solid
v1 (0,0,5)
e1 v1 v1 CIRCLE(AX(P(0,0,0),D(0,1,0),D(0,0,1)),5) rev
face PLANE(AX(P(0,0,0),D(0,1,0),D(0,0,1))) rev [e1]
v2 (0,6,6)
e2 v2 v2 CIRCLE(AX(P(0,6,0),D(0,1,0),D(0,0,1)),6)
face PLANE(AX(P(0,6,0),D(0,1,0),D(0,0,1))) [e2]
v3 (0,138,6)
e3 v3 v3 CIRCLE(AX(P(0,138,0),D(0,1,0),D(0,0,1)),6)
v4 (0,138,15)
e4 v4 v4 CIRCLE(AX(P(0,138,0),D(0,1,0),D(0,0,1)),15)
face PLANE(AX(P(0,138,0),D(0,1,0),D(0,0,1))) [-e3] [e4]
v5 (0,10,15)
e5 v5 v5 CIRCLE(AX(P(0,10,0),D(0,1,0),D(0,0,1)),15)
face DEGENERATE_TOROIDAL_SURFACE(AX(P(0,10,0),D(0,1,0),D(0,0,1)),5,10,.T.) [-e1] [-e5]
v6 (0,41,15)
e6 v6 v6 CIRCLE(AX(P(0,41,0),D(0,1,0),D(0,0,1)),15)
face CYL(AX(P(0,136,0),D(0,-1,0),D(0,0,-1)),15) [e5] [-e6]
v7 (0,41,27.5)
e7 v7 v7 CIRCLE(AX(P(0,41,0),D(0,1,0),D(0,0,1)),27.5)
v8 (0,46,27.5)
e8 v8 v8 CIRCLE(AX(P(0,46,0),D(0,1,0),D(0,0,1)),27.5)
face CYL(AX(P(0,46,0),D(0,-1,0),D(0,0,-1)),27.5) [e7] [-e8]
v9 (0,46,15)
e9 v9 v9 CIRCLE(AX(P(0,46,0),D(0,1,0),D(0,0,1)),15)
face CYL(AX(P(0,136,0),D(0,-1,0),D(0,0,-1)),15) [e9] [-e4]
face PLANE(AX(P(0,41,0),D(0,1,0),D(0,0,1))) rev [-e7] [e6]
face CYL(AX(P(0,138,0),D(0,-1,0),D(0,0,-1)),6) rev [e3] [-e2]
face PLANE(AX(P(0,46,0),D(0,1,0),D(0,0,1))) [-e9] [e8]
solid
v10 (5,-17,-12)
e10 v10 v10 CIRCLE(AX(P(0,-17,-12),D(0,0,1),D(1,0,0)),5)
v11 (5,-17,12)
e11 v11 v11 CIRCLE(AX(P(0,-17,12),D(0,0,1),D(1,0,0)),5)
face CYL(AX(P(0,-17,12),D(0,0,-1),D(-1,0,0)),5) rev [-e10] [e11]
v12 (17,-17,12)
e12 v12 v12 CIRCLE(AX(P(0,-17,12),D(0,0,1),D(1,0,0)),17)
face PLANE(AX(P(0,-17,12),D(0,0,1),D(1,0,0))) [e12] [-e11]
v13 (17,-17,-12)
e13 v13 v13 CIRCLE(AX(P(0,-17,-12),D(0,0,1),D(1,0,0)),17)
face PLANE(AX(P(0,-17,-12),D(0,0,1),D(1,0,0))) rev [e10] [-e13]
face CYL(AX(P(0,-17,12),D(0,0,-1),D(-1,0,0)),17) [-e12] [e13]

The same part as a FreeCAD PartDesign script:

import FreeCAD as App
import Part
import Sketcher
from FreeCAD import Vector
Q = App.Units.Quantity


def edges_at(feature, points):
    """Names of the edges that pass closest to the given points."""
    edges = feature.Shape.Edges
    near = lambda p: min(range(len(edges)), key=lambda i: edges[i].distToShape(Part.Vertex(*p))[0])
    return sorted({f"Edge{near(p) + 1}" for p in points})

doc = App.newDocument("Part")
body = doc.addObject("PartDesign::Body", "Body")

sketch1 = body.newObject("Sketcher::SketchObject", "Sketch")
sketch1.AttachmentSupport = (doc.getObject("XZ_Plane"), [""])
sketch1.MapMode = "FlatFace"
sketch1.addGeometry(Part.Circle(Vector(0, 0, 0), Vector(0, 0, 1), 15), False)
sketch1.addConstraint([
    Sketcher.Constraint("Coincident", 0, 3, -1, 1),
    Sketcher.Constraint("Diameter", 0, Q("30 mm")),
])
pad1 = body.newObject("PartDesign::Pad", "Pad")
pad1.Profile = sketch1
pad1.Length = 136
pad1.Reversed = True

sketch2 = body.newObject("Sketcher::SketchObject", "Sketch001")
sketch2.AttachmentSupport = (doc.getObject("XZ_Plane"), [""])
sketch2.MapMode = "FlatFace"
sketch2.AttachmentOffset = App.Placement(Vector(0, 0, -136), App.Rotation())
sketch2.addGeometry([
    Part.Circle(Vector(0, 0, 0), Vector(0, 0, 1), 15),
    Part.Circle(Vector(0, 0, 0), Vector(0, 0, 1), 6),
], False)
sketch2.addConstraint([
    Sketcher.Constraint("Coincident", 0, 3, -1, 1),
    Sketcher.Constraint("Coincident", 1, 3, -1, 1),
    Sketcher.Constraint("Diameter", 0, Q("30 mm")),
    Sketcher.Constraint("Diameter", 1, Q("12 mm")),
])
pad2 = body.newObject("PartDesign::Pad", "Pad001")
pad2.Profile = sketch2
pad2.Length = 2
pad2.Reversed = True

sketch3 = body.newObject("Sketcher::SketchObject", "Sketch002")
sketch3.AttachmentSupport = (doc.getObject("XZ_Plane"), [""])
sketch3.MapMode = "FlatFace"
sketch3.AttachmentOffset = App.Placement(Vector(0, 0, -6), App.Rotation())
sketch3.addGeometry(Part.Circle(Vector(0, 0, 0), Vector(0, 0, 1), 6), False)
sketch3.addConstraint([
    Sketcher.Constraint("Coincident", 0, 3, -1, 1),
    Sketcher.Constraint("Diameter", 0, Q("12 mm")),
])
pocket1 = body.newObject("PartDesign::Pocket", "Pocket")
pocket1.Profile = sketch3
pocket1.Length = 130
doc.recompute()

fillet = body.newObject("PartDesign::Fillet", "Fillet")
fillet.Base = (pocket1, edges_at(pocket1, [(0, 0, -15)]))
fillet.Radius = 10

sketch4 = body.newObject("Sketcher::SketchObject", "Sketch003")
sketch4.AttachmentSupport = (doc.getObject("XZ_Plane"), [""])
sketch4.MapMode = "FlatFace"
sketch4.AttachmentOffset = App.Placement(Vector(0, 0, -41), App.Rotation())
sketch4.addGeometry([
    Part.Circle(Vector(0, 0, 0), Vector(0, 0, 1), 28),
    Part.Circle(Vector(0, 0, 0), Vector(0, 0, 1), 15),
], False)
sketch4.addConstraint([
    Sketcher.Constraint("Coincident", 0, 3, -1, 1),
    Sketcher.Constraint("Coincident", 1, 3, -1, 1),
    Sketcher.Constraint("Diameter", 0, Q("55 mm")),
    Sketcher.Constraint("Diameter", 1, Q("30 mm")),
])
pad3 = body.newObject("PartDesign::Pad", "Pad002")
pad3.Profile = sketch4
pad3.Length = 5
pad3.Reversed = True
body2 = doc.addObject("PartDesign::Body", "Body001")

sketch5 = body2.newObject("Sketcher::SketchObject", "Sketch004")
sketch5.AttachmentSupport = (doc.getObject("XY_Plane001"), [""])
sketch5.MapMode = "FlatFace"
sketch5.addGeometry([
    Part.Circle(Vector(0, -17, 0), Vector(0, 0, 1), 17),
    Part.Circle(Vector(0, -17, 0), Vector(0, 0, 1), 5),
], False)
sketch5.addConstraint([
    Sketcher.Constraint("Coincident", 1, 3, 0, 3),
    Sketcher.Constraint("PointOnObject", 0, 3, -2),
    Sketcher.Constraint("Diameter", 0, Q("34 mm")),
    Sketcher.Constraint("Diameter", 1, Q("10 mm")),
    Sketcher.Constraint("DistanceY", 0, 3, -1, 1, Q("17 mm")),
])
pad4 = body2.newObject("PartDesign::Pad", "Pad003")
pad4.Profile = sketch5
pad4.Length = 24
pad4.Midplane = True

doc.recompute()
